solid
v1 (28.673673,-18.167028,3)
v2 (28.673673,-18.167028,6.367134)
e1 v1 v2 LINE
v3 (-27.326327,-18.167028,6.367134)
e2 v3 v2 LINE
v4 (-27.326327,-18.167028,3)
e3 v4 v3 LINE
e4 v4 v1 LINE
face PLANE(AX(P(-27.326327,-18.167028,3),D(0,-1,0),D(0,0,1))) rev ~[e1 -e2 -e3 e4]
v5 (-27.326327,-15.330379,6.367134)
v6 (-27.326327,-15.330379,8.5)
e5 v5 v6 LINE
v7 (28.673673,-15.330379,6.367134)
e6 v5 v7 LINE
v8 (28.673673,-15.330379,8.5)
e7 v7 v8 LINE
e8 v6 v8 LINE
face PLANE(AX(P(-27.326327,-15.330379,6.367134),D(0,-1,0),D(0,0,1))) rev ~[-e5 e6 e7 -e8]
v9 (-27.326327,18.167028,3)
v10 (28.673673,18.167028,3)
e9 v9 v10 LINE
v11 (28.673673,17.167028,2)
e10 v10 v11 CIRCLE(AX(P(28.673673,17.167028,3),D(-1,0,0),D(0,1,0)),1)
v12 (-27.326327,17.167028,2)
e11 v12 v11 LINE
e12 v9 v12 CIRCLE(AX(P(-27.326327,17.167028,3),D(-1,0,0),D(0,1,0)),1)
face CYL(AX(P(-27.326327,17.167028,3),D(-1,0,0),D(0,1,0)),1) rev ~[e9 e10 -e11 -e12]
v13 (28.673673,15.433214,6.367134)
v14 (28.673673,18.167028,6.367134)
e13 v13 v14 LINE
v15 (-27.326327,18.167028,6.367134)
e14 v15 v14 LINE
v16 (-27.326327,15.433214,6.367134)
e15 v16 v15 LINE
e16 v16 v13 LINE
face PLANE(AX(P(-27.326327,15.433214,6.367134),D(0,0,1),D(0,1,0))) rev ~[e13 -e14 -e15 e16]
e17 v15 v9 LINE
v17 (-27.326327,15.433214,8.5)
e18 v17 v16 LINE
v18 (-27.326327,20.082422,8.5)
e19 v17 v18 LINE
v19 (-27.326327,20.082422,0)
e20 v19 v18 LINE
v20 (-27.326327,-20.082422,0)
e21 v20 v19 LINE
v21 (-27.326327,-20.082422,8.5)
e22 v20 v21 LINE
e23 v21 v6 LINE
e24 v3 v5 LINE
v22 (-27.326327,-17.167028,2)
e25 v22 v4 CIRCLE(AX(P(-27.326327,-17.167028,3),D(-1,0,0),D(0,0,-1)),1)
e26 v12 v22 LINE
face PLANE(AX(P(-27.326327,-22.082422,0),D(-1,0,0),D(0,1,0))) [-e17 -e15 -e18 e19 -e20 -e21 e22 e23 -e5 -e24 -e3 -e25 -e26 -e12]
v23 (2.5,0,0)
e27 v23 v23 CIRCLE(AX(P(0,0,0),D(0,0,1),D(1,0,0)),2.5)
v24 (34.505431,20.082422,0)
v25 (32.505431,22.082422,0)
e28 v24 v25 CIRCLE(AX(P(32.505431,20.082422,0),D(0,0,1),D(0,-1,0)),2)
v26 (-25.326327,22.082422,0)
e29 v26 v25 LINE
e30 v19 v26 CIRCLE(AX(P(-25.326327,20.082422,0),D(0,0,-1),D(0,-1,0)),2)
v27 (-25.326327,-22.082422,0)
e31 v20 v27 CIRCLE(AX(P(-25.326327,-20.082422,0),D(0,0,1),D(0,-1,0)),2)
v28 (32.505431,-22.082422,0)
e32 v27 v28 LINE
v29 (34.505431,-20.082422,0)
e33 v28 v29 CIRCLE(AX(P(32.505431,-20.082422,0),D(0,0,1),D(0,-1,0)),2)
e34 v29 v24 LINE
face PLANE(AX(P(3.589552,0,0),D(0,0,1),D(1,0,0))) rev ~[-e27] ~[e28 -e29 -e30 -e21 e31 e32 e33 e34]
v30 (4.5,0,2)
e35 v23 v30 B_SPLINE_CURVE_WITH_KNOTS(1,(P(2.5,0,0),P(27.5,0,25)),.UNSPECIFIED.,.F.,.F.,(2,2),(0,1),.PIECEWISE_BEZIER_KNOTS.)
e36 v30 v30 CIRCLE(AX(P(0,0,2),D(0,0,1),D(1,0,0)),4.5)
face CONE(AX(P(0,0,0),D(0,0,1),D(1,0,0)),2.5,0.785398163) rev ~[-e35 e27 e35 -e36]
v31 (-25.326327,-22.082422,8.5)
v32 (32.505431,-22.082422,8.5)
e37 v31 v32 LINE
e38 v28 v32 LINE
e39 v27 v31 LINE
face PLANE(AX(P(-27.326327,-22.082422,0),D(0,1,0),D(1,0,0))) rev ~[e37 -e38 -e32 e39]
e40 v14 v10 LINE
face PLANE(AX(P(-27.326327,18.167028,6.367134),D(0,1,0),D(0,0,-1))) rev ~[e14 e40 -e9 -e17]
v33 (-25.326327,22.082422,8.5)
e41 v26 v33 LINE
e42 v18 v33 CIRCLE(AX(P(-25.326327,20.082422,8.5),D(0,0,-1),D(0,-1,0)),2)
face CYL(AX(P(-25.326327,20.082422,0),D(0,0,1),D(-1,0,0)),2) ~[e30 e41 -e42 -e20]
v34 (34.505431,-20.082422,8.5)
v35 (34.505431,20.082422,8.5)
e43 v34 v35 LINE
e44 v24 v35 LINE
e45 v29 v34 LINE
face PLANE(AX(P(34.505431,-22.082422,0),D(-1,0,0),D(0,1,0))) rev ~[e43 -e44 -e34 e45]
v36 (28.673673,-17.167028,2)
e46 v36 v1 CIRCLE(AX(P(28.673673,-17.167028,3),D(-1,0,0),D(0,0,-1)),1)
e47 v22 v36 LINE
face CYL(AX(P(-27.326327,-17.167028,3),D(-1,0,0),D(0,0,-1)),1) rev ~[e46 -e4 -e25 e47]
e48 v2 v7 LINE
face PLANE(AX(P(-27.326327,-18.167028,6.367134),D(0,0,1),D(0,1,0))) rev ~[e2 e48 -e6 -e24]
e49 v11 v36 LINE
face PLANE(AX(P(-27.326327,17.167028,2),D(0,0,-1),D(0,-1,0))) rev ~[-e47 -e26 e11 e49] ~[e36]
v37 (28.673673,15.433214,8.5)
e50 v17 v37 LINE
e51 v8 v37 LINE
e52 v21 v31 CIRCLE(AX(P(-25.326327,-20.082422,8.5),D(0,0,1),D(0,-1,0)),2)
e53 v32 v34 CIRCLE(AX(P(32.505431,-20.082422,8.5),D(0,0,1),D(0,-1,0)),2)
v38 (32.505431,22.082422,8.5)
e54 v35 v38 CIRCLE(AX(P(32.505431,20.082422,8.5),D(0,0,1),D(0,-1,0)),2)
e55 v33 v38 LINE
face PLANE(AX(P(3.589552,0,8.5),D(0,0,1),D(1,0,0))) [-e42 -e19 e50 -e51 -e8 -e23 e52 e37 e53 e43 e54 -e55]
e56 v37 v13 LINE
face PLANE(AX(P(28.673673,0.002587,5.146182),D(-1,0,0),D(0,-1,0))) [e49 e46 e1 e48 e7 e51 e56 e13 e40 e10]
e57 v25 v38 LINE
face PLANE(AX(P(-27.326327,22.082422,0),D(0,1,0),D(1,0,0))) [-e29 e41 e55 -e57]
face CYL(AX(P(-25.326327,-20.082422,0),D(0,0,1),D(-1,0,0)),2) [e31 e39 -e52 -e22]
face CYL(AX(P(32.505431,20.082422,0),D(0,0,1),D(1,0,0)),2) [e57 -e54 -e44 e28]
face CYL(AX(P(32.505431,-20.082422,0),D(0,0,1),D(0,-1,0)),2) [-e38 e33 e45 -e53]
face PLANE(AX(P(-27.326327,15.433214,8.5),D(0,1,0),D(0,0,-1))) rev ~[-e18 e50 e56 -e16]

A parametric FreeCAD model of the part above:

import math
import FreeCAD as App
import Part
import Sketcher


def edges_at(feature, points):
    """Names of the edges that pass closest to the given points."""
    edges = feature.Shape.Edges
    near = lambda p: min(range(len(edges)), key=lambda i: edges[i].distToShape(Part.Vertex(*p))[0])
    return sorted({f"Edge{near(p) + 1}" for p in points})


def add_polygon(sketch, points):
    """Adds a closed chain of lines whose ends are joined by coincident constraints."""
    first, n = sketch.GeometryCount, len(points)
    for a, b in zip(points, points[1:] + points[:1]):
        sketch.addGeometry(Part.LineSegment(App.Vector(*a, 0), App.Vector(*b, 0)), False)
    for i in range(n):
        sketch.addConstraint(Sketcher.Constraint("Coincident", first + i, 2, first + (i + 1) % n, 1))

doc = App.newDocument("Part")
body = doc.addObject("PartDesign::Body", "Body")

# Sketch on XY plane
sketch1 = body.newObject("Sketcher::SketchObject", "Sketch")
sketch1.AttachmentSupport = (doc.getObject("XY_Plane"), [""])
sketch1.MapMode = "FlatFace"
add_polygon(sketch1, [(-27, 22), (-27, -22), (35, -22), (35, 22)])  # lines 0-3
sketch1.addConstraint([
    Sketcher.Constraint("Vertical", 0),
    Sketcher.Constraint("Horizontal", 1),
    Sketcher.Constraint("Vertical", 2),
    Sketcher.Constraint("Horizontal", 3),
    Sketcher.Constraint("DistanceX", 1, 1, 1, 2, 61.831757),
    Sketcher.Constraint("DistanceY", 0, 2, 0, 1, 44.164844),
    Sketcher.Constraint("DistanceY", 0, 2, -1, 1, 22.082422),
    Sketcher.Constraint("DistanceX", -1, 1, 1, 2, 34.505431),
])
pad1 = body.newObject("PartDesign::Pad", "Pad")
pad1.Profile = sketch1
pad1.Length = 8.5
doc.recompute()

fillet = body.newObject("PartDesign::Fillet", "Fillet")
fillet.Base = (pad1, edges_at(pad1, [
    (-27.326, -22.082, 4.25),
    (34.505, -22.082, 4.25),
    (-27.326, 22.082, 4.25),
    (34.505, 22.082, 4.25),
]))
fillet.Radius = 2

# Sketch on YZ plane
sketch2 = body.newObject("Sketcher::SketchObject", "Sketch001")
sketch2.AttachmentSupport = (doc.getObject("YZ_Plane"), [""])
sketch2.MapMode = "FlatFace"
sketch2.AttachmentOffset = App.Placement(App.Vector(0, 0, -27.326327), App.Rotation())
sketch2.addGeometry([
    Part.ArcOfCircle(Part.Circle(App.Vector(17.2, 3, 0), App.Vector(0, 0, 1), 1), math.radians(-90), math.radians(0)),  # 0
    Part.LineSegment(App.Vector(17.2, 2, 0), App.Vector(-17.2, 2, 0)),  # 1
    Part.ArcOfCircle(Part.Circle(App.Vector(-17.2, 3, 0), App.Vector(0, 0, 1), 1), math.radians(180), math.radians(270)),  # 2
    Part.LineSegment(App.Vector(-18.2, 3, 0), App.Vector(-18.2, 6.4, 0)),  # 3
    Part.LineSegment(App.Vector(-18.2, 6.4, 0), App.Vector(-15.3, 6.4, 0)),  # 4
    Part.LineSegment(App.Vector(-15.3, 6.4, 0), App.Vector(-15.3, 8.5, 0)),  # 5
    Part.LineSegment(App.Vector(-15.3, 8.5, 0), App.Vector(15.4, 8.5, 0)),  # 6
    Part.LineSegment(App.Vector(15.4, 8.5, 0), App.Vector(15.4, 6.4, 0)),  # 7
    Part.LineSegment(App.Vector(15.4, 6.4, 0), App.Vector(18.2, 6.4, 0)),  # 8
    Part.LineSegment(App.Vector(18.2, 6.4, 0), App.Vector(18.2, 3, 0)),  # 9
], False)
sketch2.addConstraint([
    Sketcher.Constraint("Tangent", 0, 1, 1, 1),
    Sketcher.Constraint("Tangent", 1, 2, 2, 2),
    Sketcher.Constraint("Tangent", 2, 1, 3, 1),
    Sketcher.Constraint("Coincident", 3, 2, 4, 1),
    Sketcher.Constraint("Coincident", 4, 2, 5, 1),
    Sketcher.Constraint("Coincident", 5, 2, 6, 1),
    Sketcher.Constraint("Coincident", 6, 2, 7, 1),
    Sketcher.Constraint("Coincident", 7, 2, 8, 1),
    Sketcher.Constraint("Coincident", 8, 2, 9, 1),
    Sketcher.Constraint("Tangent", 9, 2, 0, 2),
    Sketcher.Constraint("Horizontal", 1),
    Sketcher.Constraint("Vertical", 3),
    Sketcher.Constraint("Horizontal", 4),
    Sketcher.Constraint("Vertical", 5),
    Sketcher.Constraint("Horizontal", 6),
    Sketcher.Constraint("Vertical", 7),
    Sketcher.Constraint("Horizontal", 8),
    Sketcher.Constraint("Vertical", 9),
    Sketcher.Constraint("Equal", 0, 2),
    Sketcher.Constraint("Symmetric", 3, 2, 8, 2, -2),
    Sketcher.Constraint("Radius", 0, 1.0),
    Sketcher.Constraint("DistanceY", -1, 1, 0, 3, 3.0),
    Sketcher.Constraint("DistanceY", -1, 1, 5, 2, 8.5),
    Sketcher.Constraint("DistanceX", 4, 1, 4, 2, 2.836649),
    Sketcher.Constraint("DistanceX", 1, 2, 1, 1, 34.334057),
    Sketcher.Constraint("DistanceX", 6, 1, 6, 2, 30.763593),
    Sketcher.Constraint("DistanceY", 3, 1, 3, 2, 3.367134),
])
pocket1 = body.newObject("PartDesign::Pocket", "Pocket")
pocket1.Profile = sketch2
pocket1.Length = 56
pocket1.Reversed = True

# Sketch on XY plane
sketch3 = body.newObject("Sketcher::SketchObject", "Sketch002")
sketch3.AttachmentSupport = (doc.getObject("XY_Plane"), [""])
sketch3.MapMode = "FlatFace"
sketch3.addGeometry(Part.Circle(App.Vector(0, 0, 0), App.Vector(0, 0, 1), 2.5), False)
sketch3.addConstraint([
    Sketcher.Constraint("Coincident", 0, 3, -1, 1),
    Sketcher.Constraint("Diameter", 0, 5.0),
])
pocket2 = body.newObject("PartDesign::Pocket", "Pocket001")
pocket2.Profile = sketch3
pocket2.Length = 25
pocket2.Reversed = True
pocket2.TaperAngle = 45

doc.recompute()
